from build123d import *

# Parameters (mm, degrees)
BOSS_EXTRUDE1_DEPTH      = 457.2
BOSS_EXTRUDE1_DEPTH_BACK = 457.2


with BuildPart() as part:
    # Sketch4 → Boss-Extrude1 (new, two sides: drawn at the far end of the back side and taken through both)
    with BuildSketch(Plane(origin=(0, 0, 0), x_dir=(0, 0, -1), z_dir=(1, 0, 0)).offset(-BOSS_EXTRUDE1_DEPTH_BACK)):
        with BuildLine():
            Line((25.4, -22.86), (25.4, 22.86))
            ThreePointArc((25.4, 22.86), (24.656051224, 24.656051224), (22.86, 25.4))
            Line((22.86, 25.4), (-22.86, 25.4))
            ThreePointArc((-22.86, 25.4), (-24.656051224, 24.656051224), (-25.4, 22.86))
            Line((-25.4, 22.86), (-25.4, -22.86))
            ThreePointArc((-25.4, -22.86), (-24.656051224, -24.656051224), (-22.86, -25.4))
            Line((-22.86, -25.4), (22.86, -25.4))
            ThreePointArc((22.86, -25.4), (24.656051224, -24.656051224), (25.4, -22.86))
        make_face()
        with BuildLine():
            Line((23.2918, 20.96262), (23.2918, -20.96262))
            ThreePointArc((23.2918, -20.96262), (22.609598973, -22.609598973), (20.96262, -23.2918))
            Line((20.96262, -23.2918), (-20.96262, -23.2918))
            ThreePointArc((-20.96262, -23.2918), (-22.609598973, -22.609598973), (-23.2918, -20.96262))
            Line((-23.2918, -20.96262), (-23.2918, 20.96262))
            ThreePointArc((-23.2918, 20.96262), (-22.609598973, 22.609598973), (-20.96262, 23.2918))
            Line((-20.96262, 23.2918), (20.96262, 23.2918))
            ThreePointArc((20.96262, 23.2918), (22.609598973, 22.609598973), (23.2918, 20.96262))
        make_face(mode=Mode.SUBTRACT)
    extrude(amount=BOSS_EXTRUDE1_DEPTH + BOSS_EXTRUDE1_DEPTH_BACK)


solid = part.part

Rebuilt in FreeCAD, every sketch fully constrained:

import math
import FreeCAD as App
import Part
import Sketcher
Q = App.Units.Quantity

doc = App.newDocument("Part")
body = doc.addObject("PartDesign::Body", "Body")

# Sketch on YZ plane
sketch1 = body.newObject("Sketcher::SketchObject", "Sketch")
sketch1.AttachmentSupport = (doc.getObject("YZ_Plane"), [""])
sketch1.MapMode = "FlatFace"
sketch1.addGeometry([
    Part.LineSegment(App.Vector(-22.86, -25.4, 0), App.Vector(22.86, -25.4, 0)),  # 0
    Part.ArcOfCircle(Part.Circle(App.Vector(22.86, -22.86, 0), App.Vector(0, 0, 1), 2.54), math.radians(-90), math.radians(0)),  # 1
    Part.LineSegment(App.Vector(25.4, -22.86, 0), App.Vector(25.4, 22.86, 0)),  # 2
    Part.ArcOfCircle(Part.Circle(App.Vector(22.86, 22.86, 0), App.Vector(0, 0, 1), 2.54), math.radians(0), math.radians(90)),  # 3
    Part.LineSegment(App.Vector(22.86, 25.4, 0), App.Vector(-22.86, 25.4, 0)),  # 4
    Part.ArcOfCircle(Part.Circle(App.Vector(-22.86, 22.86, 0), App.Vector(0, 0, 1), 2.54), math.radians(90), math.radians(180)),  # 5
    Part.LineSegment(App.Vector(-25.4, 22.86, 0), App.Vector(-25.4, -22.86, 0)),  # 6
    Part.ArcOfCircle(Part.Circle(App.Vector(-22.86, -22.86, 0), App.Vector(0, 0, 1), 2.54), math.radians(-180), math.radians(-90)),  # 7
    Part.ArcOfCircle(Part.Circle(App.Vector(20.96262, -20.96262, 0), App.Vector(0, 0, 1), 2.32918), math.radians(-90), math.radians(0)),  # 8
    Part.LineSegment(App.Vector(20.96262, -23.2918, 0), App.Vector(-20.96262, -23.2918, 0)),  # 9
    Part.ArcOfCircle(Part.Circle(App.Vector(-20.96262, -20.96262, 0), App.Vector(0, 0, 1), 2.32918), math.radians(180), math.radians(270)),  # 10
    Part.LineSegment(App.Vector(-23.2918, -20.96262, 0), App.Vector(-23.2918, 20.96262, 0)),  # 11
    Part.ArcOfCircle(Part.Circle(App.Vector(-20.96262, 20.96262, 0), App.Vector(0, 0, 1), 2.32918), math.radians(90), math.radians(180)),  # 12
    Part.LineSegment(App.Vector(-20.96262, 23.2918, 0), App.Vector(20.96262, 23.2918, 0)),  # 13
    Part.ArcOfCircle(Part.Circle(App.Vector(20.96262, 20.96262, 0), App.Vector(0, 0, 1), 2.32918), math.radians(0), math.radians(90)),  # 14
    Part.LineSegment(App.Vector(23.2918, 20.96262, 0), App.Vector(23.2918, -20.96262, 0)),  # 15
], False)
sketch1.addConstraint([
    Sketcher.Constraint("Tangent", 0, 2, 1, 1),
    Sketcher.Constraint("Tangent", 1, 2, 2, 1),
    Sketcher.Constraint("Tangent", 2, 2, 3, 1),
    Sketcher.Constraint("Tangent", 3, 2, 4, 1),
    Sketcher.Constraint("Tangent", 4, 2, 5, 1),
    Sketcher.Constraint("Tangent", 5, 2, 6, 1),
    Sketcher.Constraint("Tangent", 6, 2, 7, 1),
    Sketcher.Constraint("Tangent", 7, 2, 0, 1),
    Sketcher.Constraint("Tangent", 8, 1, 9, 1),
    Sketcher.Constraint("Tangent", 9, 2, 10, 2),
    Sketcher.Constraint("Tangent", 10, 1, 11, 1),
    Sketcher.Constraint("Tangent", 11, 2, 12, 2),
    Sketcher.Constraint("Tangent", 12, 1, 13, 1),
    Sketcher.Constraint("Tangent", 13, 2, 14, 2),
    Sketcher.Constraint("Tangent", 14, 1, 15, 1),
    Sketcher.Constraint("Tangent", 15, 2, 8, 2),
    Sketcher.Constraint("Horizontal", 0),
    Sketcher.Constraint("Vertical", 2),
    Sketcher.Constraint("Horizontal", 4),
    Sketcher.Constraint("Vertical", 6),
    Sketcher.Constraint("Horizontal", 9),
    Sketcher.Constraint("Vertical", 11),
    Sketcher.Constraint("Horizontal", 13),
    Sketcher.Constraint("Vertical", 15),
    Sketcher.Constraint("Equal", 1, 3),
    Sketcher.Constraint("Equal", 3, 5),
    Sketcher.Constraint("Equal", 5, 7),
    Sketcher.Constraint("Equal", 8, 10),
    Sketcher.Constraint("Equal", 10, 12),
    Sketcher.Constraint("Equal", 12, 14),
    Sketcher.Constraint("Symmetric", 1, 3, 5, 3, -1, 1),
    Sketcher.Constraint("Symmetric", 8, 3, 12, 3, -1, 1),
    Sketcher.Constraint("Equal", 4, 2),
    Sketcher.Constraint("Equal", 13, 11),
    Sketcher.Constraint("Radius", 1, Q("0.1 in")),
    Sketcher.Constraint("DistanceX", 0, 1, 0, 2, Q("1.8 in")),
    Sketcher.Constraint("Radius", 8, Q("0.0917 in")),
    Sketcher.Constraint("DistanceX", 9, 2, 9, 1, Q("1.6506 in")),
])
pad1 = body.newObject("PartDesign::Pad", "Pad")
pad1.Profile = sketch1
pad1.Type = "TwoLengths"
pad1.Length = Q("18 in")
pad1.Length2 = Q("18 in")

doc.recompute()
